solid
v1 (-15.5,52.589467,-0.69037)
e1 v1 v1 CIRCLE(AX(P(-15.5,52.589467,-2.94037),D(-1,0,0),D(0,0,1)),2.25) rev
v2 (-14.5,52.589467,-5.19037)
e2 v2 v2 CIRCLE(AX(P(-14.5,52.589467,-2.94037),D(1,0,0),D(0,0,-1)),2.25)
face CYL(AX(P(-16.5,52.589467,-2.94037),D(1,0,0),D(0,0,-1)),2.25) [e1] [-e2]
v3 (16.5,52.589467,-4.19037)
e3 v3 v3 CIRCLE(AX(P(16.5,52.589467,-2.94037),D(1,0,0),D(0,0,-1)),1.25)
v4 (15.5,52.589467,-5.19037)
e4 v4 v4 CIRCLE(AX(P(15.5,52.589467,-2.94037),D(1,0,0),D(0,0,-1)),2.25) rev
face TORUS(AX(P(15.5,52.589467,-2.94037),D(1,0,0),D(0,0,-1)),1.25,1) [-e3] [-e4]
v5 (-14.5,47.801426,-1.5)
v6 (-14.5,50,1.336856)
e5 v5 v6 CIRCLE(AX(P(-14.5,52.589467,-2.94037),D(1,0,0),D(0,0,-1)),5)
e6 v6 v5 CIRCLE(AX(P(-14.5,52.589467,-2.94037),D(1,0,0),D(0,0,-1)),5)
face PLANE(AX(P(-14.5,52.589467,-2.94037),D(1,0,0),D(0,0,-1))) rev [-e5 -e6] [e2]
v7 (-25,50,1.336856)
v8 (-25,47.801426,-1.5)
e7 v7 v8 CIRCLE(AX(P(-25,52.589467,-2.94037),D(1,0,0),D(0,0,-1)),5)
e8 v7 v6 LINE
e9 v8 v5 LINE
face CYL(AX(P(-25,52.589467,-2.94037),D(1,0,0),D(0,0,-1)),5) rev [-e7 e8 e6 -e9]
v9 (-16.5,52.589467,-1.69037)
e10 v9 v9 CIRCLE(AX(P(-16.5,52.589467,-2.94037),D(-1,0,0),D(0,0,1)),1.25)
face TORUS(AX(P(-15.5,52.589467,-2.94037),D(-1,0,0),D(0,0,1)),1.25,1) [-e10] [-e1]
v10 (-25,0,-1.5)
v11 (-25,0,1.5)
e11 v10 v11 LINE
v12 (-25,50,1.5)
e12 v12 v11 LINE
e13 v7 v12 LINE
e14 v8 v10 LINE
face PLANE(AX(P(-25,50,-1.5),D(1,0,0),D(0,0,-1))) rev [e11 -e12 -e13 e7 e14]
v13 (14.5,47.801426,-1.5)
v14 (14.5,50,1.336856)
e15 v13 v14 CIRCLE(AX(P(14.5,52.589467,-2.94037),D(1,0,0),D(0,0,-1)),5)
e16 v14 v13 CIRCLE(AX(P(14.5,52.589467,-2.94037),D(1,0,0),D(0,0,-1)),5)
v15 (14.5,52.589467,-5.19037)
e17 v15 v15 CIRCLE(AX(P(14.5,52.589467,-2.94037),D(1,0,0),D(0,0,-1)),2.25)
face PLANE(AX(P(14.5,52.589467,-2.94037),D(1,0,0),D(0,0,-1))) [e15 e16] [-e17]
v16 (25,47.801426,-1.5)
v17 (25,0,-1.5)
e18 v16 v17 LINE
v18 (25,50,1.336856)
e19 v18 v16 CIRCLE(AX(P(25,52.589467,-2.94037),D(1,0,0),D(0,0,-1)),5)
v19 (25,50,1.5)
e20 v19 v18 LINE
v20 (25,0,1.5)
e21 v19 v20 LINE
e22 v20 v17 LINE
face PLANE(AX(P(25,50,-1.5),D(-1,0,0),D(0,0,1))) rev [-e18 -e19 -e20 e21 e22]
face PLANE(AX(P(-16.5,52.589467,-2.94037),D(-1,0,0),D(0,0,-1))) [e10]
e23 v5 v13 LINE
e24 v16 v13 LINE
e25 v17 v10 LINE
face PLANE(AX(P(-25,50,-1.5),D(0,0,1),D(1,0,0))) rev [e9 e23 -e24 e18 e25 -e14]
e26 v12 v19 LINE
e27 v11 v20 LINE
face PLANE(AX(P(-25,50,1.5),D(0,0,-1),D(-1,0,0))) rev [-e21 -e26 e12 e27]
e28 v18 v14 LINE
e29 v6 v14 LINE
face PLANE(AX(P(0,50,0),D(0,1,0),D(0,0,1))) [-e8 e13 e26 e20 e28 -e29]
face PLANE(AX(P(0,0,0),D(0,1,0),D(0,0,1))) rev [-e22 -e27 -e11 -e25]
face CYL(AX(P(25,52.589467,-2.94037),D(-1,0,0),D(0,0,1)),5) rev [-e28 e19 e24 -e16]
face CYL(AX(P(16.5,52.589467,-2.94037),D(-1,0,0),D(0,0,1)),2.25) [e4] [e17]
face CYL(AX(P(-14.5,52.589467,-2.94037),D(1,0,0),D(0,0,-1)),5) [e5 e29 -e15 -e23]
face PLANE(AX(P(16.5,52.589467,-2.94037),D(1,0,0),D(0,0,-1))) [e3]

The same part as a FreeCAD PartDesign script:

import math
import FreeCAD as App
import Part
import Sketcher

V = App.Vector


def edges_at(feature, points):
    """Names of the edges that pass closest to the given points."""
    edges = feature.Shape.Edges
    near = lambda p: min(range(len(edges)), key=lambda i: edges[i].distToShape(Part.Vertex(*p))[0])
    return sorted({f"Edge{near(p) + 1}" for p in points})


def add_polygon(sketch, points):
    """Adds a closed chain of lines whose ends are joined by coincident constraints."""
    first, n = sketch.GeometryCount, len(points)
    for a, b in zip(points, points[1:] + points[:1]):
        sketch.addGeometry(Part.LineSegment(App.Vector(*a, 0), App.Vector(*b, 0)), False)
    for i in range(n):
        sketch.addConstraint(Sketcher.Constraint("Coincident", first + i, 2, first + (i + 1) % n, 1))

doc = App.newDocument("Part")
body = doc.addObject("PartDesign::Body", "Body")

sketch1 = body.newObject("Sketcher::SketchObject", "Sketch")
sketch1.AttachmentSupport = (doc.getObject("XZ_Plane"), [""])
sketch1.MapMode = "FlatFace"
add_polygon(sketch1, [(-25, -1.5), (-25, 1.5), (25, 1.5), (25, -1.5)])
sketch1.addConstraint([
    Sketcher.Constraint("Vertical", 0),
    Sketcher.Constraint("Horizontal", 1),
    Sketcher.Constraint("Vertical", 2),
    Sketcher.Constraint("Horizontal", 3),
    Sketcher.Constraint("Symmetric", 0, 2, 2, 2, -1, 1),
    Sketcher.Constraint("DistanceX", 1, 1, 1, 2, 50.0),
    Sketcher.Constraint("DistanceY", 0, 1, 0, 2, 3.0),
])
pad1 = body.newObject("PartDesign::Pad", "Pad")
pad1.Profile = sketch1
pad1.Length = 50
pad1.Reversed = True

sketch2 = body.newObject("Sketcher::SketchObject", "Sketch001")
sketch2.AttachmentSupport = (doc.getObject("YZ_Plane"), [""])
sketch2.MapMode = "FlatFace"
sketch2.addGeometry(Part.Circle(V(53, -3, 0), V(0, 0, 1), 5), False)
sketch2.addConstraint([
    Sketcher.Constraint("Diameter", 0, 10.0),
    Sketcher.Constraint("DistanceY", 0, 3, -1, 1, 2.94037),
    Sketcher.Constraint("DistanceX", -1, 1, 0, 3, 52.589467),
])
pad2 = body.newObject("PartDesign::Pad", "Pad001")
pad2.Profile = sketch2
pad2.Type = "TwoLengths"
pad2.Length = 14.5
pad2.Length2 = 14.5

sketch3 = body.newObject("Sketcher::SketchObject", "Sketch002")
sketch3.AttachmentSupport = (doc.getObject("YZ_Plane"), [""])
sketch3.MapMode = "FlatFace"
sketch3.AttachmentOffset = App.Placement(V(0, 0, 14.5), App.Rotation())
sketch3.addGeometry(Part.Circle(V(52.6, -2.9, 0), V(0, 0, 1), 2.2), False)
sketch3.addConstraint([
    Sketcher.Constraint("Diameter", 0, 4.5),
    Sketcher.Constraint("DistanceY", 0, 3, -1, 1, 2.94037),
    Sketcher.Constraint("DistanceX", -1, 1, 0, 3, 52.589467),
])
pad3 = body.newObject("PartDesign::Pad", "Pad002")
pad3.Profile = sketch3
pad3.Length = 2
doc.recompute()

fillet = body.newObject("PartDesign::Fillet", "Fillet")
fillet.Base = (pad3, edges_at(pad3, [(16.5, 52.589, -0.69)]))
fillet.Radius = 1
doc.recompute()

mirrored = body.newObject("PartDesign::Mirrored", "Mirrored")
mirrored.Originals = [pad3]
mirrored.MirrorPlane = (doc.getObject("YZ_Plane"), [""])
body.Tip = mirrored
doc.recompute()

fillet2 = body.newObject("PartDesign::Fillet", "Fillet001")
fillet2.Base = (mirrored, edges_at(mirrored, [(-16.5, 52.589, -0.69)]))
fillet2.Radius = 1

sketch4 = body.newObject("Sketcher::SketchObject", "Sketch003")
sketch4.AttachmentSupport = (doc.getObject("YZ_Plane"), [""])
sketch4.MapMode = "FlatFace"
sketch4.AttachmentOffset = App.Placement(V(0, 0, 14.5), App.Rotation())
sketch4.addGeometry([
    Part.LineSegment(V(47.8, -1.5, 0), V(50, -1.5, 0)),
    Part.LineSegment(V(50, -1.5, 0), V(50, 1.3, 0)),
    Part.ArcOfCircle(Part.Circle(V(52.6, -2.9, 0), V(0, 0, 1), 5), math.radians(121), math.radians(163)),
], False)
sketch4.addConstraint([
    Sketcher.Constraint("Coincident", 0, 2, 1, 1),
    Sketcher.Constraint("Coincident", 1, 2, 2, 1),
    Sketcher.Constraint("Coincident", 2, 2, 0, 1),
    Sketcher.Constraint("Horizontal", 0),
    Sketcher.Constraint("Vertical", 1),
    Sketcher.Constraint("Radius", 2, 5.0),
    Sketcher.Constraint("DistanceX", -1, 1, 0, 2, 50.0),
    Sketcher.Constraint("DistanceY", 0, 2, -1, 1, 1.5),
    Sketcher.Constraint("DistanceX", 0, 1, 0, 2, 2.198574),
    Sketcher.Constraint("DistanceY", 1, 1, 1, 2, 2.836856),
])
pocket1 = body.newObject("PartDesign::Pocket", "Pocket")
pocket1.Profile = sketch4
pocket1.Type = "ThroughAll"
pocket1.Reversed = True
doc.recompute()

mirrored2 = body.newObject("PartDesign::Mirrored", "Mirrored001")
mirrored2.Originals = [pocket1]
mirrored2.MirrorPlane = (doc.getObject("YZ_Plane"), [""])
body.Tip = mirrored2

doc.recompute()
